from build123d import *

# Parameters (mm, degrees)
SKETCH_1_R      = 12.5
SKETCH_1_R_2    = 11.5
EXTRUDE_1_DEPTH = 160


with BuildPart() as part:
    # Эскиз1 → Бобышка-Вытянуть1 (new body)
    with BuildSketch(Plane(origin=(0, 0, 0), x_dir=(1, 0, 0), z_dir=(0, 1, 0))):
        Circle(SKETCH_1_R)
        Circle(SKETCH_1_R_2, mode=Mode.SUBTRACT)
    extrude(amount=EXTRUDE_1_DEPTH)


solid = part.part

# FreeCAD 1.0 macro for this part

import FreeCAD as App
import Part
import Sketcher

doc = App.newDocument("Part")
params = doc.addObject("Spreadsheet::Sheet", "Params")
for row, (alias, value) in enumerate([
    ("sketch1_diameter", "25 mm"),
    ("sketch1_diameter2", "23 mm"),
    ("pad1_length", "160 mm"),
], start=1):
    params.set(f"A{row}", alias)
    params.set(f"B{row}", "=" + value)
    params.setAlias(f"B{row}", alias)

body = doc.addObject("PartDesign::Body", "Body")

# Sketch on XZ plane
sketch1 = body.newObject("Sketcher::SketchObject", "Sketch")
sketch1.AttachmentSupport = (doc.getObject("XZ_Plane"), [""])
sketch1.MapMode = "FlatFace"
sketch1.addGeometry([
    Part.Circle(App.Vector(0, 0, 0), App.Vector(0, 0, 1), 12),
    Part.Circle(App.Vector(0, 0, 0), App.Vector(0, 0, 1), 12),
], False)
sketch1.addConstraint([
    Sketcher.Constraint("Coincident", 0, 3, -1, 1),
    Sketcher.Constraint("Coincident", 1, 3, -1, 1),
    Sketcher.Constraint("Diameter", 0, 25.0),
    Sketcher.Constraint("Diameter", 1, 23.0),
])
sketch1.setExpression("Constraints[2]", "Params.sketch1_diameter")
sketch1.setExpression("Constraints[3]", "Params.sketch1_diameter2")
pad1 = body.newObject("PartDesign::Pad", "Pad")
pad1.Profile = sketch1
pad1.setExpression("Length", "Params.pad1_length")
pad1.Reversed = True

doc.recompute()
